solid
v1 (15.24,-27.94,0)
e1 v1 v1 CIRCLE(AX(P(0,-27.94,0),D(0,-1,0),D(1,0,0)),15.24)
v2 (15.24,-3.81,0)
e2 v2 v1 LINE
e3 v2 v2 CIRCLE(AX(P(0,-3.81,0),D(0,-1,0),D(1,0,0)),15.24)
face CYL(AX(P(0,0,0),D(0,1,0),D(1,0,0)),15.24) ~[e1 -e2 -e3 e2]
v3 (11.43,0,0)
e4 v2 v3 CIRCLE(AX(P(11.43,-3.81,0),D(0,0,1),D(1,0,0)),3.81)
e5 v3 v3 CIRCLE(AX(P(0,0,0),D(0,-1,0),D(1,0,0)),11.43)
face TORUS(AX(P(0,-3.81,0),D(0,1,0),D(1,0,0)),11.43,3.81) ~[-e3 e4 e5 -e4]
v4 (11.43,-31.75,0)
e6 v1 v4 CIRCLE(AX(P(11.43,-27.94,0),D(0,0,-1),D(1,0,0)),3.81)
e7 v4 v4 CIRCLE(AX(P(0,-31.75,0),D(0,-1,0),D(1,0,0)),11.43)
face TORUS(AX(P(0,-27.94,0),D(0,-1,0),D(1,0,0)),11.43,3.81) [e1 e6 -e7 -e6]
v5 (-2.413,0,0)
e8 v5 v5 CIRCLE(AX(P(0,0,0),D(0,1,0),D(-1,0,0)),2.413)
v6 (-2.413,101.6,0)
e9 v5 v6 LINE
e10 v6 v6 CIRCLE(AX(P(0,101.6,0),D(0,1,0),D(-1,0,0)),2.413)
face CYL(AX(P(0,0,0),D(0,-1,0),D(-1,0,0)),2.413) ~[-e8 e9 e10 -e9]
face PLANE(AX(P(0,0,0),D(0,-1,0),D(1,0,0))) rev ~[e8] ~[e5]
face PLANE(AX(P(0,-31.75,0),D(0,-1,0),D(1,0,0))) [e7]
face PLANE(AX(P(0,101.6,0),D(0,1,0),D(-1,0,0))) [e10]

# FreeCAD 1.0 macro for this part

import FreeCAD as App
import Part
import Sketcher
from FreeCAD import Vector
Q = App.Units.Quantity


def edges_at(feature, points):
    """Names of the edges that pass closest to the given points."""
    edges = feature.Shape.Edges
    near = lambda p: min(range(len(edges)), key=lambda i: edges[i].distToShape(Part.Vertex(*p))[0])
    return sorted({f"Edge{near(p) + 1}" for p in points})

doc = App.newDocument("Part")
body = doc.addObject("PartDesign::Body", "Body")

# Sketch on XZ plane
sketch1 = body.newObject("Sketcher::SketchObject", "Sketch")
sketch1.AttachmentSupport = (doc.getObject("XZ_Plane"), [""])
sketch1.MapMode = "FlatFace"
sketch1.addGeometry(Part.Circle(Vector(0, 0, 0), Vector(0, 0, 1), 15), False)
sketch1.addConstraint([
    Sketcher.Constraint("Coincident", 0, 3, -1, 1),
    Sketcher.Constraint("Diameter", 0, Q("1.2 in")),
])
pad1 = body.newObject("PartDesign::Pad", "Pad")
pad1.Profile = sketch1
pad1.Length = Q("1.25 in")
doc.recompute()

fillet = body.newObject("PartDesign::Fillet", "Fillet")
fillet.Base = (pad1, edges_at(pad1, [(-15.24, -31.75, 0), (-15.24, 0, 0)]))
fillet.Radius = Q("0.15 in")

# Sketch on XZ plane
sketch2 = body.newObject("Sketcher::SketchObject", "Sketch001")
sketch2.AttachmentSupport = (doc.getObject("XZ_Plane"), [""])
sketch2.MapMode = "FlatFace"
sketch2.addGeometry(Part.Circle(Vector(0, 0, 0), Vector(0, 0, 1), 2.4), False)
sketch2.addConstraint([
    Sketcher.Constraint("Coincident", 0, 3, -1, 1),
    Sketcher.Constraint("Diameter", 0, Q("0.19 in")),
])
pad2 = body.newObject("PartDesign::Pad", "Pad001")
pad2.Profile = sketch2
pad2.Length = Q("4 in")
pad2.Reversed = True

doc.recompute()
